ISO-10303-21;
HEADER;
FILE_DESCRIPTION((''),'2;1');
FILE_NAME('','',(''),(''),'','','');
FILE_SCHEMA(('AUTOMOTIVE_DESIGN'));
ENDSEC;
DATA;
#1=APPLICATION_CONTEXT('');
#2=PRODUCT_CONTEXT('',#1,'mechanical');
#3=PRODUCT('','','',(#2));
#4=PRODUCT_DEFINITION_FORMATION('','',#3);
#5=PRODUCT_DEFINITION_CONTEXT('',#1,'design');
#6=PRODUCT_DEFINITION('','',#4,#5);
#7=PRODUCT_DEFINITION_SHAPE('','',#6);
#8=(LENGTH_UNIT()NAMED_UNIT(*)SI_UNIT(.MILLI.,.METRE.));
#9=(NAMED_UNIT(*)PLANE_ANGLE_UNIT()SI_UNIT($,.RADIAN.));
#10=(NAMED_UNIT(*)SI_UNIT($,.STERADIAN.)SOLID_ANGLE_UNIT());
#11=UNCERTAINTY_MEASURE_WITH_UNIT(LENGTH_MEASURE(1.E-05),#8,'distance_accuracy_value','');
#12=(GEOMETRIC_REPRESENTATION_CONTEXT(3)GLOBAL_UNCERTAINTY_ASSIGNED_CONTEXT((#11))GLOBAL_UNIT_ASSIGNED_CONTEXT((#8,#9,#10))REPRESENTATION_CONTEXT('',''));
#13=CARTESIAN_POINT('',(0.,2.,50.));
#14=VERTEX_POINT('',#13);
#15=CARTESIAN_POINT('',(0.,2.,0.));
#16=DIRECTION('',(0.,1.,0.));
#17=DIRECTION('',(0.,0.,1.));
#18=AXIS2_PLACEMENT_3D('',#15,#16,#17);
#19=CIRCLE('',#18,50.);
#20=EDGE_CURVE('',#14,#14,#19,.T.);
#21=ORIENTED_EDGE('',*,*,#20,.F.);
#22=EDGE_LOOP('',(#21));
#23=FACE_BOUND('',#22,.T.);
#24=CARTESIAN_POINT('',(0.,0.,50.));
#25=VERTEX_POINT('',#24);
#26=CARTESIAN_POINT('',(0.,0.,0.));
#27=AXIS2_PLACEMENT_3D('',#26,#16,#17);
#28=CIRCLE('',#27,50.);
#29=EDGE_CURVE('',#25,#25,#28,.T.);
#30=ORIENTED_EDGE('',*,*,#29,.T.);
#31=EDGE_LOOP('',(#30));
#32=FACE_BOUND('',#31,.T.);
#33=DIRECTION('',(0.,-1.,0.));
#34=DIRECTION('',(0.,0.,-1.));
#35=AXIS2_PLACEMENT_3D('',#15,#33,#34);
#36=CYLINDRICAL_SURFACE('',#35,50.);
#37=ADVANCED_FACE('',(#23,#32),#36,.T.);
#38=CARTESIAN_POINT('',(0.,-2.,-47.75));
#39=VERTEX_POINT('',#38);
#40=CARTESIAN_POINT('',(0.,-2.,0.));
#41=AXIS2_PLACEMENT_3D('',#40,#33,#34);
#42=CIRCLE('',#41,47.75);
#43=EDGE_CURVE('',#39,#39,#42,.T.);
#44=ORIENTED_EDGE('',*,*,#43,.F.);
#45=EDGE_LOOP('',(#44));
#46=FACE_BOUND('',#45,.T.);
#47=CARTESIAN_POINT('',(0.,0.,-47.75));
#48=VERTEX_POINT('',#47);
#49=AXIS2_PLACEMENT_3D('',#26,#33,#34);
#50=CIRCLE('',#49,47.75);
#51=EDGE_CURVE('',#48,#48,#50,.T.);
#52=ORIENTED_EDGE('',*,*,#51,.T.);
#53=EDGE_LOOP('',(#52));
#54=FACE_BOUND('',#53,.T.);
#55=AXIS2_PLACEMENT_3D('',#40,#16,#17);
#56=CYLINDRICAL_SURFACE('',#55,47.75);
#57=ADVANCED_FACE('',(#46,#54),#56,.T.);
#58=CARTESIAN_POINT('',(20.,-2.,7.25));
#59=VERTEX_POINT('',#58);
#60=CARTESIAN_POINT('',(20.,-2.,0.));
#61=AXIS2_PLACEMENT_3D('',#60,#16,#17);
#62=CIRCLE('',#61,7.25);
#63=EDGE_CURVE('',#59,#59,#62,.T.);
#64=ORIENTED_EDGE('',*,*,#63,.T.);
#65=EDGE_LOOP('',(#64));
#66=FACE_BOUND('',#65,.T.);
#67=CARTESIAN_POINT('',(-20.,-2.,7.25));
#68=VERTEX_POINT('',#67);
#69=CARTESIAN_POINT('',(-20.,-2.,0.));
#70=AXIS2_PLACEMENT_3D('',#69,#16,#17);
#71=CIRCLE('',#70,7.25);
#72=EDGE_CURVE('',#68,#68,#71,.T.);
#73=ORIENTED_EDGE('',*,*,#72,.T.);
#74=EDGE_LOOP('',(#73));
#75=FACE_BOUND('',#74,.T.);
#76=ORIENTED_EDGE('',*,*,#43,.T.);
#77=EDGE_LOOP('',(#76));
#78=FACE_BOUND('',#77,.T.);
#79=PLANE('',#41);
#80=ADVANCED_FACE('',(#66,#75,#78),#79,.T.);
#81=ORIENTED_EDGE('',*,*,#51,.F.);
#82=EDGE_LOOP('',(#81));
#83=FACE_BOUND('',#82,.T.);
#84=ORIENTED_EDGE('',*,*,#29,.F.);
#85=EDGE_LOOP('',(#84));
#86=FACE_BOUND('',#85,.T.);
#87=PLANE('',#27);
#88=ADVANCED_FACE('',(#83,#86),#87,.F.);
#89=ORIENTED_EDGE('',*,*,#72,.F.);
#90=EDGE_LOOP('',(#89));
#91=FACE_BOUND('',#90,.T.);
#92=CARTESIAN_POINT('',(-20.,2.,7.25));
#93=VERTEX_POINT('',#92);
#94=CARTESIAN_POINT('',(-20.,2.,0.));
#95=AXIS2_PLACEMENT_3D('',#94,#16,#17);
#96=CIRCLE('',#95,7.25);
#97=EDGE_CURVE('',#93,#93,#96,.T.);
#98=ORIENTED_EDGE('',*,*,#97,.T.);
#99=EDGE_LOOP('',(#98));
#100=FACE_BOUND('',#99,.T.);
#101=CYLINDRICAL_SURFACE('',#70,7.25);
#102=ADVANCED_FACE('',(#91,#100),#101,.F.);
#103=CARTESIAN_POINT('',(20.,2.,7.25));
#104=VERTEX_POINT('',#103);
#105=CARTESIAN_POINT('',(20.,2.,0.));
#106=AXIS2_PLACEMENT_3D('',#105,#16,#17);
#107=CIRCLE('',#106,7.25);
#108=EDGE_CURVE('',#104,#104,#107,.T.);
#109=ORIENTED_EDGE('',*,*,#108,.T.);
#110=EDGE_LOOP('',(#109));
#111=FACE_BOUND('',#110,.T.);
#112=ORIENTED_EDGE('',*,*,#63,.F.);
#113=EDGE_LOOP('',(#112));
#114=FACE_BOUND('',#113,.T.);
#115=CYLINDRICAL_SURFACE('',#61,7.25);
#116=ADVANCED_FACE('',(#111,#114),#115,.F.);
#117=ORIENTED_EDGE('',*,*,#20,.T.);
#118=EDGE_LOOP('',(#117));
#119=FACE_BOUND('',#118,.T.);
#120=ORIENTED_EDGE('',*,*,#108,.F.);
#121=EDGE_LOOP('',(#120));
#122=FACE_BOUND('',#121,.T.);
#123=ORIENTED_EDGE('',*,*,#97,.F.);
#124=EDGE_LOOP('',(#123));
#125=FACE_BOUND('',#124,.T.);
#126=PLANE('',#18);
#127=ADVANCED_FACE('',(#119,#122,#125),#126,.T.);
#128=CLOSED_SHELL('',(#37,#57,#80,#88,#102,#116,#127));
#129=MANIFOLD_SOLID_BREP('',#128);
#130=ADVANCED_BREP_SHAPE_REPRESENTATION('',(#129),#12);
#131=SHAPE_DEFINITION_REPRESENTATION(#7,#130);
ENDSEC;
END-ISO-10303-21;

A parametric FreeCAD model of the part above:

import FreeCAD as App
import Part
import Sketcher

doc = App.newDocument("Part")
body = doc.addObject("PartDesign::Body", "Body")

# Sketch on XZ plane
sketch1 = body.newObject("Sketcher::SketchObject", "Sketch")
sketch1.AttachmentSupport = (doc.getObject("XZ_Plane"), [""])
sketch1.MapMode = "FlatFace"
sketch1.addGeometry(Part.Circle(App.Vector(0, 0, 0), App.Vector(0, 0, 1), 50), False)
sketch1.addConstraint([
    Sketcher.Constraint("Coincident", 0, 3, -1, 1),
    Sketcher.Constraint("Diameter", 0, 100.0),
])
pad1 = body.newObject("PartDesign::Pad", "Pad")
pad1.Profile = sketch1
pad1.Length = 2
pad1.Reversed = True

# Sketch on XZ plane
sketch2 = body.newObject("Sketcher::SketchObject", "Sketch001")
sketch2.AttachmentSupport = (doc.getObject("XZ_Plane"), [""])
sketch2.MapMode = "FlatFace"
sketch2.addGeometry(Part.Circle(App.Vector(0, 0, 0), App.Vector(0, 0, 1), 48), False)
sketch2.addConstraint([
    Sketcher.Constraint("Coincident", 0, 3, -1, 1),
    Sketcher.Constraint("Diameter", 0, 95.5),
])
pad2 = body.newObject("PartDesign::Pad", "Pad001")
pad2.Profile = sketch2
pad2.Length = 2

# Sketch on XZ plane
sketch3 = body.newObject("Sketcher::SketchObject", "Sketch002")
sketch3.AttachmentSupport = (doc.getObject("XZ_Plane"), [""])
sketch3.MapMode = "FlatFace"
sketch3.AttachmentOffset = App.Placement(App.Vector(0, 0, -2), App.Rotation())
sketch3.addGeometry([
    Part.Circle(App.Vector(-20, 0, 0), App.Vector(0, 0, 1), 7),
    Part.Circle(App.Vector(20, 0, 0), App.Vector(0, 0, 1), 7),
], False)
sketch3.addConstraint([
    Sketcher.Constraint("Equal", 0, 1),
    Sketcher.Constraint("Symmetric", 0, 3, 1, 3, -1, 1),
    Sketcher.Constraint("PointOnObject", 0, 3, -1),
    Sketcher.Constraint("Diameter", 0, 14.5),
    Sketcher.Constraint("DistanceX", 0, 3, -1, 1, 20.0),
])
pocket1 = body.newObject("PartDesign::Pocket", "Pocket")
pocket1.Profile = sketch3
pocket1.Type = "ThroughAll"
pocket1.Reversed = True

doc.recompute()
